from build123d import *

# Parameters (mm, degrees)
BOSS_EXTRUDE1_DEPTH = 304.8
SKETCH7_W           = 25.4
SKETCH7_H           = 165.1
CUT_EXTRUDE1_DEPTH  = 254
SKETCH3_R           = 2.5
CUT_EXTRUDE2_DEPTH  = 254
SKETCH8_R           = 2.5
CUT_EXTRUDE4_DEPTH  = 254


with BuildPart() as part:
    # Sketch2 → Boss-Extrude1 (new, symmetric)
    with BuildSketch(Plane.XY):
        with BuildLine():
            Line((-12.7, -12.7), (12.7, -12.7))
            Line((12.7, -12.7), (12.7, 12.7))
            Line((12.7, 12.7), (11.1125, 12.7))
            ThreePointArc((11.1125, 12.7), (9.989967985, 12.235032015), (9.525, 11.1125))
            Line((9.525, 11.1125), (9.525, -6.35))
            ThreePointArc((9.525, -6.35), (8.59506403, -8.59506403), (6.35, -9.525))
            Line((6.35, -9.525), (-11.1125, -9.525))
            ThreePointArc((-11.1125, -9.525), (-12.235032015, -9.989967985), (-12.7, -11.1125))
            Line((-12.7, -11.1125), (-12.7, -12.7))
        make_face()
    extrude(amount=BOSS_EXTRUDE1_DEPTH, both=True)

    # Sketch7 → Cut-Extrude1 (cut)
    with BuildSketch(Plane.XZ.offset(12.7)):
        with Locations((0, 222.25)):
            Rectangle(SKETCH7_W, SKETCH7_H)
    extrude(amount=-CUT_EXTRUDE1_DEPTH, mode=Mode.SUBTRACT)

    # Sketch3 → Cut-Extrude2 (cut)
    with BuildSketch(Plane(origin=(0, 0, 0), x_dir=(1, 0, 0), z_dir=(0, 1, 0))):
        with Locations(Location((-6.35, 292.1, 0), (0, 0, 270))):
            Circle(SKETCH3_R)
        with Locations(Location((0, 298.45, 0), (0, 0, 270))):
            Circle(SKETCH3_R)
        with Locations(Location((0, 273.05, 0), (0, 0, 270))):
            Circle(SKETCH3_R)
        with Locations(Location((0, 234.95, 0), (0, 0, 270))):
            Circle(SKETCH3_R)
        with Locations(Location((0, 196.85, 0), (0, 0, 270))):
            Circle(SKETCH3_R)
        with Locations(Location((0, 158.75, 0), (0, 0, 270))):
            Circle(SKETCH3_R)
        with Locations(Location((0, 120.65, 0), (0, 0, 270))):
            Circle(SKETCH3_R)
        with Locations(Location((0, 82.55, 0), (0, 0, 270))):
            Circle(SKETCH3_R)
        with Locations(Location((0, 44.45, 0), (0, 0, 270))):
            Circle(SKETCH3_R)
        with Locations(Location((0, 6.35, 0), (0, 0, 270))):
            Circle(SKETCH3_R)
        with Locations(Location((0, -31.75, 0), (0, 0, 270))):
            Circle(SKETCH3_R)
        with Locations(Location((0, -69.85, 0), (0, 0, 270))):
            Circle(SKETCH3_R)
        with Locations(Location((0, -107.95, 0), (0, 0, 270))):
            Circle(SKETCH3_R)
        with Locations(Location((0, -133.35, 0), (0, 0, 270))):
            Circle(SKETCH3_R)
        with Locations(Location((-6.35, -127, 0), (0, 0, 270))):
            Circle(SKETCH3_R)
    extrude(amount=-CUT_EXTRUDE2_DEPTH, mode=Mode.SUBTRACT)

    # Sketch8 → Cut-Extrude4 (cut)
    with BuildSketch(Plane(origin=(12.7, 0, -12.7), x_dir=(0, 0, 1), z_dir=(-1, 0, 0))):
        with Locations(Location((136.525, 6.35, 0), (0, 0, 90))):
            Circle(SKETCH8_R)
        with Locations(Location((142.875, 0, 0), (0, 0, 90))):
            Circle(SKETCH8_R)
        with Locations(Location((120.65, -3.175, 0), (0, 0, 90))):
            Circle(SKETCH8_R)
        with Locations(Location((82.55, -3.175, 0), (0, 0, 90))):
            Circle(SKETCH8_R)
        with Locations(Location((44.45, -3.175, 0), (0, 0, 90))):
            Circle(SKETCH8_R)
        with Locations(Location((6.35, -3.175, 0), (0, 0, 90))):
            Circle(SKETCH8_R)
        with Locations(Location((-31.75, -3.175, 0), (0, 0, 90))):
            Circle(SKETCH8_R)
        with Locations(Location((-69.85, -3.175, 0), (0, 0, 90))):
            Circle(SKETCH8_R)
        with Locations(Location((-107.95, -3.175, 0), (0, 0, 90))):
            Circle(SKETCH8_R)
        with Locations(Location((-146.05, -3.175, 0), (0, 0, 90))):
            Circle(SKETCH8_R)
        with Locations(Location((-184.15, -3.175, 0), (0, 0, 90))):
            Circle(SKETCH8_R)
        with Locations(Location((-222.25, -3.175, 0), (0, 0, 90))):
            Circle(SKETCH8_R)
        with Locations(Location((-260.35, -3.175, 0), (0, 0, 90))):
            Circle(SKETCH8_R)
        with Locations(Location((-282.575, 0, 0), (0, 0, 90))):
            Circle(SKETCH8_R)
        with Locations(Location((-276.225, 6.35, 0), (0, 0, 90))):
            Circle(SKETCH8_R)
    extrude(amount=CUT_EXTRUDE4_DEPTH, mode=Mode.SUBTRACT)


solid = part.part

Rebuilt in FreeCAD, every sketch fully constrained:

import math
import FreeCAD as App
import Part
import Sketcher
Q = App.Units.Quantity

doc = App.newDocument("Part")
body = doc.addObject("PartDesign::Body", "Body")

sketch1 = doc.addObject("Sketcher::SketchObject", "Sketch")
body.addObject(sketch1)
sketch1.AttachmentSupport = (doc.XY_Plane, [""])
sketch1.MapMode = "FlatFace"
sketch1.addGeometry(Part.LineSegment(App.Vector(-12.7, -12.7, 0), App.Vector(12.7, -12.7, 0)), False)
sketch1.addGeometry(Part.LineSegment(App.Vector(12.7, -12.7, 0), App.Vector(12.7, 12.7, 0)), False)
sketch1.addGeometry(Part.LineSegment(App.Vector(12.7, 12.7, 0), App.Vector(11.1, 12.7, 0)), False)
sketch1.addGeometry(Part.ArcOfCircle(Part.Circle(App.Vector(11.1, 11.1, 0), App.Vector(0, 0, 1), 1.6), math.radians(90), math.radians(180)), False)
sketch1.addGeometry(Part.LineSegment(App.Vector(9.5, 11.1, 0), App.Vector(9.5, -6.3, 0)), False)
sketch1.addGeometry(Part.ArcOfCircle(Part.Circle(App.Vector(6.3, -6.3, 0), App.Vector(0, 0, 1), 3.2), math.radians(-90), math.radians(0)), False)
sketch1.addGeometry(Part.LineSegment(App.Vector(6.3, -9.5, 0), App.Vector(-11.1, -9.5, 0)), False)
sketch1.addGeometry(Part.ArcOfCircle(Part.Circle(App.Vector(-11.1, -11.1, 0), App.Vector(0, 0, 1), 1.6), math.radians(90), math.radians(180)), False)
sketch1.addGeometry(Part.LineSegment(App.Vector(-12.7, -11.1, 0), App.Vector(-12.7, -12.7, 0)), False)
sketch1.addConstraint(Sketcher.Constraint("Coincident", 0, 2, 1, 1))
sketch1.addConstraint(Sketcher.Constraint("Coincident", 1, 2, 2, 1))
sketch1.addConstraint(Sketcher.Constraint("Tangent", 2, 2, 3, 1))
sketch1.addConstraint(Sketcher.Constraint("Tangent", 3, 2, 4, 1))
sketch1.addConstraint(Sketcher.Constraint("Tangent", 4, 2, 5, 2))
sketch1.addConstraint(Sketcher.Constraint("Tangent", 5, 1, 6, 1))
sketch1.addConstraint(Sketcher.Constraint("Tangent", 6, 2, 7, 1))
sketch1.addConstraint(Sketcher.Constraint("Tangent", 7, 2, 8, 1))
sketch1.addConstraint(Sketcher.Constraint("Coincident", 8, 2, 0, 1))
sketch1.addConstraint(Sketcher.Constraint("Horizontal", 0))
sketch1.addConstraint(Sketcher.Constraint("Vertical", 1))
sketch1.addConstraint(Sketcher.Constraint("Horizontal", 2))
sketch1.addConstraint(Sketcher.Constraint("Vertical", 4))
sketch1.addConstraint(Sketcher.Constraint("Horizontal", 6))
sketch1.addConstraint(Sketcher.Constraint("Vertical", 8))
sketch1.addConstraint(Sketcher.Constraint("Equal", 3, 7))
sketch1.addConstraint(Sketcher.Constraint("Symmetric", 3, 3, 7, 3, -1, 1))
sketch1.addConstraint(Sketcher.Constraint("Symmetric", 1, 2, 8, 2, -1, 1))
sketch1.addConstraint(Sketcher.Constraint("Equal", 0, 1))
sketch1.addConstraint(Sketcher.Constraint("DistanceX", 0, 1, 0, 2, Q("1 in")))
sketch1.addConstraint(Sketcher.Constraint("Radius", 3, Q("0.0625 in")))
sketch1.addConstraint(Sketcher.Constraint("Radius", 5, Q("0.125 in")))
pad1 = doc.addObject("PartDesign::Pad", "Pad")
body.addObject(pad1)
pad1.Profile = sketch1
pad1.Length = Q("24 in")
pad1.Midplane = True

sketch2 = doc.addObject("Sketcher::SketchObject", "Sketch001")
body.addObject(sketch2)
sketch2.AttachmentSupport = (doc.XZ_Plane, [""])
sketch2.MapMode = "FlatFace"
sketch2.AttachmentOffset = App.Placement(App.Vector(0, 0, 0.5 * 25.4), App.Rotation())
sketch2.addGeometry(Part.LineSegment(App.Vector(-13, 305, 0), App.Vector(-13, 140, 0)), False)
sketch2.addGeometry(Part.LineSegment(App.Vector(-13, 140, 0), App.Vector(13, 140, 0)), False)
sketch2.addGeometry(Part.LineSegment(App.Vector(13, 140, 0), App.Vector(13, 305, 0)), False)
sketch2.addGeometry(Part.LineSegment(App.Vector(13, 305, 0), App.Vector(-13, 305, 0)), False)
sketch2.addConstraint(Sketcher.Constraint("Coincident", 0, 2, 1, 1))
sketch2.addConstraint(Sketcher.Constraint("Coincident", 1, 2, 2, 1))
sketch2.addConstraint(Sketcher.Constraint("Coincident", 2, 2, 3, 1))
sketch2.addConstraint(Sketcher.Constraint("Coincident", 3, 2, 0, 1))
sketch2.addConstraint(Sketcher.Constraint("Vertical", 0))
sketch2.addConstraint(Sketcher.Constraint("Horizontal", 1))
sketch2.addConstraint(Sketcher.Constraint("Vertical", 2))
sketch2.addConstraint(Sketcher.Constraint("Horizontal", 3))
sketch2.addConstraint(Sketcher.Constraint("DistanceX", 1, 1, 1, 2, Q("1 in")))
sketch2.addConstraint(Sketcher.Constraint("DistanceY", 0, 2, 0, 1, Q("6.5 in")))
sketch2.addConstraint(Sketcher.Constraint("DistanceY", -1, 1, 2, 2, Q("12 in")))
sketch2.addConstraint(Sketcher.Constraint("DistanceX", 0, 2, -1, 1, Q("0.5 in")))
pocket1 = doc.addObject("PartDesign::Pocket", "Pocket")
body.addObject(pocket1)
pocket1.Profile = sketch2
pocket1.Length = Q("10 in")

sketch3 = doc.addObject("Sketcher::SketchObject", "Sketch002")
body.addObject(sketch3)
sketch3.AttachmentSupport = (doc.XZ_Plane, [""])
sketch3.MapMode = "FlatFace"
sketch3.addGeometry(Part.Circle(App.Vector(-6.3, -292.1, 0), App.Vector(0, 0, 1), 2.5), False)
sketch3.addGeometry(Part.Circle(App.Vector(0, -298.4, 0), App.Vector(0, 0, 1), 2.5), False)
sketch3.addGeometry(Part.Circle(App.Vector(0, -273.1, 0), App.Vector(0, 0, 1), 2.5), False)
sketch3.addGeometry(Part.Circle(App.Vector(0, -234.9, 0), App.Vector(0, 0, 1), 2.5), False)
sketch3.addGeometry(Part.Circle(App.Vector(0, -196.8, 0), App.Vector(0, 0, 1), 2.5), False)
sketch3.addGeometry(Part.Circle(App.Vector(0, -158.8, 0), App.Vector(0, 0, 1), 2.5), False)
sketch3.addGeometry(Part.Circle(App.Vector(0, -120.7, 0), App.Vector(0, 0, 1), 2.5), False)
sketch3.addGeometry(Part.Circle(App.Vector(0, -82.5, 0), App.Vector(0, 0, 1), 2.5), False)
sketch3.addGeometry(Part.Circle(App.Vector(0, -44.5, 0), App.Vector(0, 0, 1), 2.5), False)
sketch3.addGeometry(Part.Circle(App.Vector(0, -6.3, 0), App.Vector(0, 0, 1), 2.5), False)
sketch3.addGeometry(Part.Circle(App.Vector(0, 31.8, 0), App.Vector(0, 0, 1), 2.5), False)
sketch3.addGeometry(Part.Circle(App.Vector(0, 69.8, 0), App.Vector(0, 0, 1), 2.5), False)
sketch3.addGeometry(Part.Circle(App.Vector(0, 108, 0), App.Vector(0, 0, 1), 2.5), False)
sketch3.addGeometry(Part.Circle(App.Vector(0, 133.3, 0), App.Vector(0, 0, 1), 2.5), False)
sketch3.addGeometry(Part.Circle(App.Vector(-6.3, 127, 0), App.Vector(0, 0, 1), 2.5), False)
sketch3.addConstraint(Sketcher.Constraint("Equal", 0, 1))
sketch3.addConstraint(Sketcher.Constraint("Equal", 1, 2))
sketch3.addConstraint(Sketcher.Constraint("Equal", 2, 3))
sketch3.addConstraint(Sketcher.Constraint("Equal", 3, 4))
sketch3.addConstraint(Sketcher.Constraint("Equal", 4, 5))
sketch3.addConstraint(Sketcher.Constraint("Equal", 5, 6))
sketch3.addConstraint(Sketcher.Constraint("Equal", 6, 7))
sketch3.addConstraint(Sketcher.Constraint("Equal", 7, 8))
sketch3.addConstraint(Sketcher.Constraint("Equal", 8, 9))
sketch3.addConstraint(Sketcher.Constraint("Equal", 9, 10))
sketch3.addConstraint(Sketcher.Constraint("Equal", 10, 11))
sketch3.addConstraint(Sketcher.Constraint("Equal", 11, 12))
sketch3.addConstraint(Sketcher.Constraint("Equal", 12, 13))
sketch3.addConstraint(Sketcher.Constraint("Equal", 13, 14))
sketch3.addConstraint(Sketcher.Constraint("PointOnObject", 1, 3, -2))
sketch3.addConstraint(Sketcher.Constraint("PointOnObject", 2, 3, -2))
sketch3.addConstraint(Sketcher.Constraint("PointOnObject", 3, 3, -2))
sketch3.addConstraint(Sketcher.Constraint("PointOnObject", 4, 3, -2))
sketch3.addConstraint(Sketcher.Constraint("PointOnObject", 5, 3, -2))
sketch3.addConstraint(Sketcher.Constraint("PointOnObject", 6, 3, -2))
sketch3.addConstraint(Sketcher.Constraint("PointOnObject", 7, 3, -2))
sketch3.addConstraint(Sketcher.Constraint("PointOnObject", 8, 3, -2))
sketch3.addConstraint(Sketcher.Constraint("PointOnObject", 9, 3, -2))
sketch3.addConstraint(Sketcher.Constraint("PointOnObject", 10, 3, -2))
sketch3.addConstraint(Sketcher.Constraint("PointOnObject", 11, 3, -2))
sketch3.addConstraint(Sketcher.Constraint("PointOnObject", 12, 3, -2))
sketch3.addConstraint(Sketcher.Constraint("PointOnObject", 13, 3, -2))
sketch3.addConstraint(Sketcher.Constraint("Vertical", 0, 3, 14, 3))
sketch3.addConstraint(Sketcher.Constraint("DistanceY", -1, 1, 14, 3, Q("5 in")))
sketch3.addConstraint(Sketcher.Constraint("DistanceY", 1, 3, 2, 3, Q("1 in")))
sketch3.addConstraint(Sketcher.Constraint("DistanceY", 2, 3, 4, 3, Q("3 in")))
sketch3.addConstraint(Sketcher.Constraint("DistanceY", 3, 3, 5, 3, Q("3 in")))
sketch3.addConstraint(Sketcher.Constraint("DistanceY", 4, 3, 6, 3, Q("3 in")))
sketch3.addConstraint(Sketcher.Constraint("DistanceY", 5, 3, 7, 3, Q("3 in")))
sketch3.addConstraint(Sketcher.Constraint("DistanceY", 6, 3, 8, 3, Q("3 in")))
sketch3.addConstraint(Sketcher.Constraint("DistanceY", 7, 3, 9, 3, Q("3 in")))
sketch3.addConstraint(Sketcher.Constraint("DistanceY", 8, 3, 10, 3, Q("3 in")))
sketch3.addConstraint(Sketcher.Constraint("DistanceY", 9, 3, 11, 3, Q("3 in")))
sketch3.addConstraint(Sketcher.Constraint("DistanceY", 10, 3, 12, 3, Q("3 in")))
sketch3.addConstraint(Sketcher.Constraint("DistanceY", 12, 3, 13, 3, Q("1 in")))
sketch3.addConstraint(Sketcher.Constraint("DistanceY", 0, 3, -1, 1, Q("11.5 in")))
sketch3.addConstraint(Sketcher.Constraint("DistanceY", 2, 3, 3, 3, Q("1.5 in")))
sketch3.addConstraint(Sketcher.Constraint("Diameter", 0, 5.0))
sketch3.addConstraint(Sketcher.Constraint("DistanceX", 0, 3, -1, 1, Q("0.25 in")))
sketch3.addConstraint(Sketcher.Constraint("DistanceY", 1, 3, -1, 1, Q("11.75 in")))
pocket2 = doc.addObject("PartDesign::Pocket", "Pocket001")
body.addObject(pocket2)
pocket2.Profile = sketch3
pocket2.Length = Q("10 in")
pocket2.Reversed = True

sketch4 = doc.addObject("Sketcher::SketchObject", "Sketch003")
body.addObject(sketch4)
sketch4.AttachmentSupport = (doc.YZ_Plane, [""])
sketch4.MapMode = "FlatFace"
sketch4.AttachmentOffset = App.Placement(App.Vector(0, 0, 0.5 * 25.4), App.Rotation())
sketch4.addGeometry(Part.Circle(App.Vector(6.3, 123.8, 0), App.Vector(0, 0, 1), 2.5), False)
sketch4.addGeometry(Part.Circle(App.Vector(0, 130.2, 0), App.Vector(0, 0, 1), 2.5), False)
sketch4.addGeometry(Part.Circle(App.Vector(-3.2, 108, 0), App.Vector(0, 0, 1), 2.5), False)
sketch4.addGeometry(Part.Circle(App.Vector(-3.2, 69.8, 0), App.Vector(0, 0, 1), 2.5), False)
sketch4.addGeometry(Part.Circle(App.Vector(-3.2, 31.8, 0), App.Vector(0, 0, 1), 2.5), False)
sketch4.addGeometry(Part.Circle(App.Vector(-3.2, -6.3, 0), App.Vector(0, 0, 1), 2.5), False)
sketch4.addGeometry(Part.Circle(App.Vector(-3.2, -44.5, 0), App.Vector(0, 0, 1), 2.5), False)
sketch4.addGeometry(Part.Circle(App.Vector(-3.2, -82.5, 0), App.Vector(0, 0, 1), 2.5), False)
sketch4.addGeometry(Part.Circle(App.Vector(-3.2, -120.7, 0), App.Vector(0, 0, 1), 2.5), False)
sketch4.addGeometry(Part.Circle(App.Vector(-3.2, -158.8, 0), App.Vector(0, 0, 1), 2.5), False)
sketch4.addGeometry(Part.Circle(App.Vector(-3.2, -196.8, 0), App.Vector(0, 0, 1), 2.5), False)
sketch4.addGeometry(Part.Circle(App.Vector(-3.2, -234.9, 0), App.Vector(0, 0, 1), 2.5), False)
sketch4.addGeometry(Part.Circle(App.Vector(-3.2, -273.1, 0), App.Vector(0, 0, 1), 2.5), False)
sketch4.addGeometry(Part.Circle(App.Vector(0, -295.3, 0), App.Vector(0, 0, 1), 2.5), False)
sketch4.addGeometry(Part.Circle(App.Vector(6.3, -288.9, 0), App.Vector(0, 0, 1), 2.5), False)
sketch4.addConstraint(Sketcher.Constraint("Equal", 0, 1))
sketch4.addConstraint(Sketcher.Constraint("Equal", 1, 2))
sketch4.addConstraint(Sketcher.Constraint("Equal", 2, 3))
sketch4.addConstraint(Sketcher.Constraint("Equal", 3, 4))
sketch4.addConstraint(Sketcher.Constraint("Equal", 4, 5))
sketch4.addConstraint(Sketcher.Constraint("Equal", 5, 6))
sketch4.addConstraint(Sketcher.Constraint("Equal", 6, 7))
sketch4.addConstraint(Sketcher.Constraint("Equal", 7, 8))
sketch4.addConstraint(Sketcher.Constraint("Equal", 8, 9))
sketch4.addConstraint(Sketcher.Constraint("Equal", 9, 10))
sketch4.addConstraint(Sketcher.Constraint("Equal", 10, 11))
sketch4.addConstraint(Sketcher.Constraint("Equal", 11, 12))
sketch4.addConstraint(Sketcher.Constraint("Equal", 12, 13))
sketch4.addConstraint(Sketcher.Constraint("Equal", 13, 14))
sketch4.addConstraint(Sketcher.Constraint("PointOnObject", 1, 3, -2))
sketch4.addConstraint(Sketcher.Constraint("PointOnObject", 13, 3, -2))
sketch4.addConstraint(Sketcher.Constraint("Vertical", 2, 3, 3, 3))
sketch4.addConstraint(Sketcher.Constraint("Vertical", 3, 3, 4, 3))
sketch4.addConstraint(Sketcher.Constraint("Vertical", 4, 3, 5, 3))
sketch4.addConstraint(Sketcher.Constraint("Vertical", 5, 3, 6, 3))
sketch4.addConstraint(Sketcher.Constraint("Vertical", 6, 3, 7, 3))
sketch4.addConstraint(Sketcher.Constraint("Vertical", 7, 3, 8, 3))
sketch4.addConstraint(Sketcher.Constraint("Vertical", 8, 3, 9, 3))
sketch4.addConstraint(Sketcher.Constraint("Vertical", 9, 3, 10, 3))
sketch4.addConstraint(Sketcher.Constraint("Vertical", 10, 3, 11, 3))
sketch4.addConstraint(Sketcher.Constraint("Vertical", 11, 3, 12, 3))
sketch4.addConstraint(Sketcher.Constraint("Vertical", 0, 3, 14, 3))
sketch4.addConstraint(Sketcher.Constraint("DistanceY", 4, 3, 2, 3, Q("3 in")))
sketch4.addConstraint(Sketcher.Constraint("DistanceY", 5, 3, 3, 3, Q("3 in")))
sketch4.addConstraint(Sketcher.Constraint("DistanceY", 6, 3, 4, 3, Q("3 in")))
sketch4.addConstraint(Sketcher.Constraint("DistanceY", 7, 3, 5, 3, Q("3 in")))
sketch4.addConstraint(Sketcher.Constraint("DistanceY", 8, 3, 6, 3, Q("3 in")))
sketch4.addConstraint(Sketcher.Constraint("DistanceY", 9, 3, 7, 3, Q("3 in")))
sketch4.addConstraint(Sketcher.Constraint("DistanceY", 10, 3, 8, 3, Q("3 in")))
sketch4.addConstraint(Sketcher.Constraint("DistanceY", 11, 3, 9, 3, Q("3 in")))
sketch4.addConstraint(Sketcher.Constraint("DistanceY", 12, 3, 10, 3, Q("3 in")))
sketch4.addConstraint(Sketcher.Constraint("DistanceY", 3, 3, 2, 3, Q("1.5 in")))
sketch4.addConstraint(Sketcher.Constraint("Diameter", 0, 5.0))
sketch4.addConstraint(Sketcher.Constraint("DistanceX", -1, 1, 0, 3, Q("0.25 in")))
sketch4.addConstraint(Sketcher.Constraint("DistanceY", -1, 1, 2, 3, Q("4.25 in")))
sketch4.addConstraint(Sketcher.Constraint("DistanceY", 0, 3, 1, 3, Q("0.25 in")))
sketch4.addConstraint(Sketcher.Constraint("DistanceY", 13, 3, 14, 3, Q("0.25 in")))
sketch4.addConstraint(Sketcher.Constraint("DistanceY", -1, 1, 0, 3, Q("4.875 in")))
sketch4.addConstraint(Sketcher.Constraint("DistanceX", 2, 3, -1, 1, Q("0.125 in")))
sketch4.addConstraint(Sketcher.Constraint("DistanceY", 13, 3, -1, 1, Q("11.625 in")))
pocket3 = doc.addObject("PartDesign::Pocket", "Pocket002")
body.addObject(pocket3)
pocket3.Profile = sketch4
pocket3.Length = Q("10 in")

doc.recompute()
